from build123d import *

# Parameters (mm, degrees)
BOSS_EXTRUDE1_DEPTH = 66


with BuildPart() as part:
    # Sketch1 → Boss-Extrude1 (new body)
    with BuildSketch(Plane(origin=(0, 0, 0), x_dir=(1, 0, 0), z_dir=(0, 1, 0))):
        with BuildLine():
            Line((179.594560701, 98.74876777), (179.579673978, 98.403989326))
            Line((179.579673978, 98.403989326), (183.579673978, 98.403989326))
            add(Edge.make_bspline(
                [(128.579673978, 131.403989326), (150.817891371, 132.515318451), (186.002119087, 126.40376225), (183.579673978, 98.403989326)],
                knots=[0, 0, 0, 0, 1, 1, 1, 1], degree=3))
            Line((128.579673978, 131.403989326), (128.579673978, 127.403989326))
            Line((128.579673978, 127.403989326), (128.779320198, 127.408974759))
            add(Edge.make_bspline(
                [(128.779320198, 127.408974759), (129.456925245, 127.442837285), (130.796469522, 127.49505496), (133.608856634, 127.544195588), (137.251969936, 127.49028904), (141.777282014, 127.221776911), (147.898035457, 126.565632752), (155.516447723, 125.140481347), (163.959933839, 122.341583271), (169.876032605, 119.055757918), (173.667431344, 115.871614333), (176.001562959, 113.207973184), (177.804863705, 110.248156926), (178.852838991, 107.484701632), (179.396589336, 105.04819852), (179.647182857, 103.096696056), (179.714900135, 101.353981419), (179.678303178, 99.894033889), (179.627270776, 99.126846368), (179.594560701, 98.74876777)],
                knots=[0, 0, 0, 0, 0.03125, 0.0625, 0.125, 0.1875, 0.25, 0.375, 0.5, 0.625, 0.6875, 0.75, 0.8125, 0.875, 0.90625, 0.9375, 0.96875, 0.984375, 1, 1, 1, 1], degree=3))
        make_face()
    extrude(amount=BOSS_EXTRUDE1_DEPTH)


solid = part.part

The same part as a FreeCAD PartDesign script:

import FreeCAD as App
import Part
import Sketcher
Q = App.Units.Quantity

doc = App.newDocument("Part")
body = doc.addObject("PartDesign::Body", "Body")

# Sketch on XZ plane
sketch1 = doc.addObject("Sketcher::SketchObject", "Sketch")
body.addObject(sketch1)
sketch1.AttachmentSupport = (doc.XZ_Plane, [""])
sketch1.MapMode = "FlatFace"
sketch1.addGeometry(Part.LineSegment(App.Vector(179.594561, -98.748768, 0), App.Vector(179.579674, -98.403989, 0)), False)
sketch1.addGeometry(Part.LineSegment(App.Vector(179.579674, -98.403989, 0), App.Vector(183.579674, -98.403989, 0)), False)
sketch1.addGeometry(Part.BSplineCurve([App.Vector(128.579674, -131.403989, 0), App.Vector(150.817891, -132.515318, 0), App.Vector(186.002119, -126.403762, 0), App.Vector(183.579674, -98.403989, 0)], [4, 4], [0, 1], False, 3, [1, 1, 1, 1], False), False)
sketch1.addGeometry(Part.LineSegment(App.Vector(128.579674, -131.403989, 0), App.Vector(128.579674, -127.403989, 0)), False)
sketch1.addGeometry(Part.LineSegment(App.Vector(128.579674, -127.403989, 0), App.Vector(128.77932, -127.408975, 0)), False)
sketch1.addGeometry(Part.BSplineCurve([App.Vector(128.77932, -127.408975, 0), App.Vector(129.456925, -127.442837, 0), App.Vector(130.79647, -127.495055, 0), App.Vector(133.608857, -127.544196, 0), App.Vector(137.25197, -127.490289, 0), App.Vector(141.777282, -127.221777, 0), App.Vector(147.898035, -126.565633, 0), App.Vector(155.516448, -125.140481, 0), App.Vector(163.959934, -122.341583, 0), App.Vector(169.876033, -119.055758, 0), App.Vector(173.667431, -115.871614, 0), App.Vector(176.001563, -113.207973, 0), App.Vector(177.804864, -110.248157, 0), App.Vector(178.852839, -107.484702, 0), App.Vector(179.396589, -105.048199, 0), App.Vector(179.647183, -103.096696, 0), App.Vector(179.7149, -101.353981, 0), App.Vector(179.678303, -99.894034, 0), App.Vector(179.627271, -99.126846, 0), App.Vector(179.594561, -98.748768, 0)], [4, 1, 1, 1, 1, 1, 1, 1, 1, 1, 1, 1, 1, 1, 1, 1, 1, 4], [0, 0.03125, 0.0625, 0.125, 0.1875, 0.25, 0.375, 0.5, 0.625, 0.6875, 0.75, 0.8125, 0.875, 0.90625, 0.9375, 0.96875, 0.984375, 1], False, 3, [1, 1, 1, 1, 1, 1, 1, 1, 1, 1, 1, 1, 1, 1, 1, 1, 1, 1, 1, 1], False), False)
sketch1.addConstraint(Sketcher.Constraint("Block", 2))
sketch1.addConstraint(Sketcher.Constraint("Block", 5))
sketch1.addConstraint(Sketcher.Constraint("Coincident", 0, 2, 1, 1))
sketch1.addConstraint(Sketcher.Constraint("Coincident", 1, 2, 2, 2))
sketch1.addConstraint(Sketcher.Constraint("Coincident", 2, 1, 3, 1))
sketch1.addConstraint(Sketcher.Constraint("Coincident", 3, 2, 4, 1))
sketch1.addConstraint(Sketcher.Constraint("Coincident", 4, 2, 5, 1))
sketch1.addConstraint(Sketcher.Constraint("Coincident", 5, 2, 0, 1))
sketch1.addConstraint(Sketcher.Constraint("Horizontal", 1))
sketch1.addConstraint(Sketcher.Constraint("Vertical", 3))
sketch1.addConstraint(Sketcher.Constraint("Equal", 1, 3))
sketch1.addConstraint(Sketcher.Constraint("DistanceX", 1, 1, 1, 2, Q("4 mm")))
pad1 = doc.addObject("PartDesign::Pad", "Pad")
body.addObject(pad1)
pad1.Profile = sketch1
pad1.Length = 66
pad1.Reversed = True

doc.recompute()
